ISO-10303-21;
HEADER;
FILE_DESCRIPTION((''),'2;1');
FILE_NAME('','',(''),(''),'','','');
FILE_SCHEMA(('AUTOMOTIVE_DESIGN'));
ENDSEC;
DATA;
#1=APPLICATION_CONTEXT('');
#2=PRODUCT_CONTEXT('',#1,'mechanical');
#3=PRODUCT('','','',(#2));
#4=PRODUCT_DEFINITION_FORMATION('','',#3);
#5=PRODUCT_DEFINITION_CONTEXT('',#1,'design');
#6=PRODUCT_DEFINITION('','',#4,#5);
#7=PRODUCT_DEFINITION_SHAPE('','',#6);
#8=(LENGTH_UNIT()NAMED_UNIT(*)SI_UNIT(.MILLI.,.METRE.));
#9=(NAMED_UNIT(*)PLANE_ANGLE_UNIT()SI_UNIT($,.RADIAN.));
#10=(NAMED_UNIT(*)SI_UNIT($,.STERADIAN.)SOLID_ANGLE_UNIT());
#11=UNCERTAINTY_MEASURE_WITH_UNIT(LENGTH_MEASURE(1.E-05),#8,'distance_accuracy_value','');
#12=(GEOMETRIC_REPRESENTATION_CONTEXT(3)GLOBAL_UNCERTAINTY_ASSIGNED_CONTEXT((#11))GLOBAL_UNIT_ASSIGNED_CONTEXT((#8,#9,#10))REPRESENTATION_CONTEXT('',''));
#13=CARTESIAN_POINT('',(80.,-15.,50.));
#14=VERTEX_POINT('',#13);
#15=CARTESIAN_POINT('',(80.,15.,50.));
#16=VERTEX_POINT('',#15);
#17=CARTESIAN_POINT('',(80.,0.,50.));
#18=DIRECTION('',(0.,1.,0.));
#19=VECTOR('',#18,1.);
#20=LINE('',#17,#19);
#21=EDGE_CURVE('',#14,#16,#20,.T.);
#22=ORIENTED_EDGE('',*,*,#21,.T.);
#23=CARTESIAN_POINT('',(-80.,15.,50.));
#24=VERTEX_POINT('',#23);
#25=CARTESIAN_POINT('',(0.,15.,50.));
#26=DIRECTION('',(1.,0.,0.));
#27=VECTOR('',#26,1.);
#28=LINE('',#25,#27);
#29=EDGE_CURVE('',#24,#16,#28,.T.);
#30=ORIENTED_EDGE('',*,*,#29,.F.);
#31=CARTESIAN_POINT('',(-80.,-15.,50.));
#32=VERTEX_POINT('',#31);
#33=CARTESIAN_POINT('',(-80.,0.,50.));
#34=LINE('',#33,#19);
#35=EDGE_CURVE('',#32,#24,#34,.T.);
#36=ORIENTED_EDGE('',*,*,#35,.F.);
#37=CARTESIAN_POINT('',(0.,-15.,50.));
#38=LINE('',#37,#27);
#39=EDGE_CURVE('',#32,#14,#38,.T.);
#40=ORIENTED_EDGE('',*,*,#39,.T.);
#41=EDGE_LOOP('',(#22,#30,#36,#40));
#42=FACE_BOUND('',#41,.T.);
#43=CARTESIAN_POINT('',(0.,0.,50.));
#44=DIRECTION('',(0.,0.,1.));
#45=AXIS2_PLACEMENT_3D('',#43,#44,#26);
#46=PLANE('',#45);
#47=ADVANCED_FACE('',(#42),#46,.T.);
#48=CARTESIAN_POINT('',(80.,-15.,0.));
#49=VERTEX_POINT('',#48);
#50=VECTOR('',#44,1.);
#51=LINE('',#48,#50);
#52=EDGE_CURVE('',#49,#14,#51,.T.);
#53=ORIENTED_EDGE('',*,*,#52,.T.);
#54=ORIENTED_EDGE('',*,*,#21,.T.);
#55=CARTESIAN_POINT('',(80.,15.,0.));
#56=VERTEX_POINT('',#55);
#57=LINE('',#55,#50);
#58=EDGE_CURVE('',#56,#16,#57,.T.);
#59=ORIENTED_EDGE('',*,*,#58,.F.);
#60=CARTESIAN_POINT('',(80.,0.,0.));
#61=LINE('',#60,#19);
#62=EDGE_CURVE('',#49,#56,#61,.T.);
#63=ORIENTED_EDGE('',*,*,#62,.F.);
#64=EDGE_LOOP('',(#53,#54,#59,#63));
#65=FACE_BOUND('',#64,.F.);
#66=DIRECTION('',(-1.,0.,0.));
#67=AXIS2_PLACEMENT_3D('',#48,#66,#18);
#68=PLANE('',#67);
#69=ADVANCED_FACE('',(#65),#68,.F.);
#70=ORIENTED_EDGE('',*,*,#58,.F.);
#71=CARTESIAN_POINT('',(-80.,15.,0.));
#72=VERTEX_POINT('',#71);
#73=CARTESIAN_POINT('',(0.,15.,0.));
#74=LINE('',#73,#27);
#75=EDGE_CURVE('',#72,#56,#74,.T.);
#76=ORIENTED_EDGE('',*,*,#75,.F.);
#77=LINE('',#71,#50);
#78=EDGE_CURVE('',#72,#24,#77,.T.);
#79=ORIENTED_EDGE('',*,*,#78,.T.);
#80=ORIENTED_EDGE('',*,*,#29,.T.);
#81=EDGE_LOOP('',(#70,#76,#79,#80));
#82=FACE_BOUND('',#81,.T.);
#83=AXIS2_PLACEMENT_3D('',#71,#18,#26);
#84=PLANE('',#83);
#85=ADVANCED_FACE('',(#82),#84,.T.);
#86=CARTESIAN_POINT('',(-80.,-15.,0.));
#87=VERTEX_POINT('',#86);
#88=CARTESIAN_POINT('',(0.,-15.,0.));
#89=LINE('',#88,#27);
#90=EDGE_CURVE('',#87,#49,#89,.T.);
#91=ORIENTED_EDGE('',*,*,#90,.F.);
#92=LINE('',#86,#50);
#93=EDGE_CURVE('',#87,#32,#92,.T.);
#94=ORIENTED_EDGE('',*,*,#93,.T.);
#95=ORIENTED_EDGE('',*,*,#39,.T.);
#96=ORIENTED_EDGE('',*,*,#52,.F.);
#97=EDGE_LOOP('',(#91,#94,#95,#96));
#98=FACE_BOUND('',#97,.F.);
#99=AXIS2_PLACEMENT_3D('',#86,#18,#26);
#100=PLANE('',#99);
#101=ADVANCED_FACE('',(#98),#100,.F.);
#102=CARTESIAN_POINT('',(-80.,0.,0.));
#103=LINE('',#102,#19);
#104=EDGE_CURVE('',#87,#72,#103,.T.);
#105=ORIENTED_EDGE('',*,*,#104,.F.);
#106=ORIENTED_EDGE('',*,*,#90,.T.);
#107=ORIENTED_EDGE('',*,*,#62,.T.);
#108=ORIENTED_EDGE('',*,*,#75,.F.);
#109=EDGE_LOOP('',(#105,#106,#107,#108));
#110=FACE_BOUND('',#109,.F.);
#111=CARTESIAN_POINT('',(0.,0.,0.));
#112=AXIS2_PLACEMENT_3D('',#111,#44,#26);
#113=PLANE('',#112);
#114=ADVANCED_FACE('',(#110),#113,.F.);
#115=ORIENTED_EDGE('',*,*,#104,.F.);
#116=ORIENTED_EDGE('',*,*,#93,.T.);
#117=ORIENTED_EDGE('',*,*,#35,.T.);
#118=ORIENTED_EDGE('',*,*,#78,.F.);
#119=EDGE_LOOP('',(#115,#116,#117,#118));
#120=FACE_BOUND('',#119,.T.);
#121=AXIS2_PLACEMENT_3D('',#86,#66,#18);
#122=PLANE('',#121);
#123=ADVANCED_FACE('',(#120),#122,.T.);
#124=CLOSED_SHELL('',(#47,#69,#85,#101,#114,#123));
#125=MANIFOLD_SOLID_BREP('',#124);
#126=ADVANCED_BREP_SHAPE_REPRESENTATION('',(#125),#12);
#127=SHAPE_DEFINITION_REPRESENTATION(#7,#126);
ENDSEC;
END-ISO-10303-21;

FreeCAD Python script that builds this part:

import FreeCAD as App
import Part
import Sketcher

V = App.Vector
Q = App.Units.Quantity


def add_polygon(sketch, points):
    """Adds a closed chain of lines whose ends are joined by coincident constraints."""
    first, n = sketch.GeometryCount, len(points)
    for a, b in zip(points, points[1:] + points[:1]):
        sketch.addGeometry(Part.LineSegment(App.Vector(*a, 0), App.Vector(*b, 0)), False)
    for i in range(n):
        sketch.addConstraint(Sketcher.Constraint("Coincident", first + i, 2, first + (i + 1) % n, 1))

doc = App.newDocument("Part")
body = doc.addObject("PartDesign::Body", "Body")

# Sketch on XY plane
sketch1 = doc.addObject("Sketcher::SketchObject", "Sketch")
body.addObject(sketch1)
sketch1.AttachmentSupport = (doc.XY_Plane, [""])
sketch1.MapMode = "FlatFace"
add_polygon(sketch1, [(-80, 15), (-80, -15), (80, -15), (80, 15)])  # lines 0-3
sketch1.addConstraint([
    Sketcher.Constraint("Vertical", 0),
    Sketcher.Constraint("Horizontal", 1),
    Sketcher.Constraint("Vertical", 2),
    Sketcher.Constraint("Horizontal", 3),
    Sketcher.Constraint("Symmetric", 0, 2, 2, 2, -1, 1),
    Sketcher.Constraint("DistanceX", 1, 1, 1, 2, Q("160 mm")),
    Sketcher.Constraint("DistanceY", 0, 2, 0, 1, Q("30 mm")),
])
pad1 = doc.addObject("PartDesign::Pad", "Pad")
body.addObject(pad1)
pad1.Profile = sketch1
pad1.Length = 50

doc.recompute()
